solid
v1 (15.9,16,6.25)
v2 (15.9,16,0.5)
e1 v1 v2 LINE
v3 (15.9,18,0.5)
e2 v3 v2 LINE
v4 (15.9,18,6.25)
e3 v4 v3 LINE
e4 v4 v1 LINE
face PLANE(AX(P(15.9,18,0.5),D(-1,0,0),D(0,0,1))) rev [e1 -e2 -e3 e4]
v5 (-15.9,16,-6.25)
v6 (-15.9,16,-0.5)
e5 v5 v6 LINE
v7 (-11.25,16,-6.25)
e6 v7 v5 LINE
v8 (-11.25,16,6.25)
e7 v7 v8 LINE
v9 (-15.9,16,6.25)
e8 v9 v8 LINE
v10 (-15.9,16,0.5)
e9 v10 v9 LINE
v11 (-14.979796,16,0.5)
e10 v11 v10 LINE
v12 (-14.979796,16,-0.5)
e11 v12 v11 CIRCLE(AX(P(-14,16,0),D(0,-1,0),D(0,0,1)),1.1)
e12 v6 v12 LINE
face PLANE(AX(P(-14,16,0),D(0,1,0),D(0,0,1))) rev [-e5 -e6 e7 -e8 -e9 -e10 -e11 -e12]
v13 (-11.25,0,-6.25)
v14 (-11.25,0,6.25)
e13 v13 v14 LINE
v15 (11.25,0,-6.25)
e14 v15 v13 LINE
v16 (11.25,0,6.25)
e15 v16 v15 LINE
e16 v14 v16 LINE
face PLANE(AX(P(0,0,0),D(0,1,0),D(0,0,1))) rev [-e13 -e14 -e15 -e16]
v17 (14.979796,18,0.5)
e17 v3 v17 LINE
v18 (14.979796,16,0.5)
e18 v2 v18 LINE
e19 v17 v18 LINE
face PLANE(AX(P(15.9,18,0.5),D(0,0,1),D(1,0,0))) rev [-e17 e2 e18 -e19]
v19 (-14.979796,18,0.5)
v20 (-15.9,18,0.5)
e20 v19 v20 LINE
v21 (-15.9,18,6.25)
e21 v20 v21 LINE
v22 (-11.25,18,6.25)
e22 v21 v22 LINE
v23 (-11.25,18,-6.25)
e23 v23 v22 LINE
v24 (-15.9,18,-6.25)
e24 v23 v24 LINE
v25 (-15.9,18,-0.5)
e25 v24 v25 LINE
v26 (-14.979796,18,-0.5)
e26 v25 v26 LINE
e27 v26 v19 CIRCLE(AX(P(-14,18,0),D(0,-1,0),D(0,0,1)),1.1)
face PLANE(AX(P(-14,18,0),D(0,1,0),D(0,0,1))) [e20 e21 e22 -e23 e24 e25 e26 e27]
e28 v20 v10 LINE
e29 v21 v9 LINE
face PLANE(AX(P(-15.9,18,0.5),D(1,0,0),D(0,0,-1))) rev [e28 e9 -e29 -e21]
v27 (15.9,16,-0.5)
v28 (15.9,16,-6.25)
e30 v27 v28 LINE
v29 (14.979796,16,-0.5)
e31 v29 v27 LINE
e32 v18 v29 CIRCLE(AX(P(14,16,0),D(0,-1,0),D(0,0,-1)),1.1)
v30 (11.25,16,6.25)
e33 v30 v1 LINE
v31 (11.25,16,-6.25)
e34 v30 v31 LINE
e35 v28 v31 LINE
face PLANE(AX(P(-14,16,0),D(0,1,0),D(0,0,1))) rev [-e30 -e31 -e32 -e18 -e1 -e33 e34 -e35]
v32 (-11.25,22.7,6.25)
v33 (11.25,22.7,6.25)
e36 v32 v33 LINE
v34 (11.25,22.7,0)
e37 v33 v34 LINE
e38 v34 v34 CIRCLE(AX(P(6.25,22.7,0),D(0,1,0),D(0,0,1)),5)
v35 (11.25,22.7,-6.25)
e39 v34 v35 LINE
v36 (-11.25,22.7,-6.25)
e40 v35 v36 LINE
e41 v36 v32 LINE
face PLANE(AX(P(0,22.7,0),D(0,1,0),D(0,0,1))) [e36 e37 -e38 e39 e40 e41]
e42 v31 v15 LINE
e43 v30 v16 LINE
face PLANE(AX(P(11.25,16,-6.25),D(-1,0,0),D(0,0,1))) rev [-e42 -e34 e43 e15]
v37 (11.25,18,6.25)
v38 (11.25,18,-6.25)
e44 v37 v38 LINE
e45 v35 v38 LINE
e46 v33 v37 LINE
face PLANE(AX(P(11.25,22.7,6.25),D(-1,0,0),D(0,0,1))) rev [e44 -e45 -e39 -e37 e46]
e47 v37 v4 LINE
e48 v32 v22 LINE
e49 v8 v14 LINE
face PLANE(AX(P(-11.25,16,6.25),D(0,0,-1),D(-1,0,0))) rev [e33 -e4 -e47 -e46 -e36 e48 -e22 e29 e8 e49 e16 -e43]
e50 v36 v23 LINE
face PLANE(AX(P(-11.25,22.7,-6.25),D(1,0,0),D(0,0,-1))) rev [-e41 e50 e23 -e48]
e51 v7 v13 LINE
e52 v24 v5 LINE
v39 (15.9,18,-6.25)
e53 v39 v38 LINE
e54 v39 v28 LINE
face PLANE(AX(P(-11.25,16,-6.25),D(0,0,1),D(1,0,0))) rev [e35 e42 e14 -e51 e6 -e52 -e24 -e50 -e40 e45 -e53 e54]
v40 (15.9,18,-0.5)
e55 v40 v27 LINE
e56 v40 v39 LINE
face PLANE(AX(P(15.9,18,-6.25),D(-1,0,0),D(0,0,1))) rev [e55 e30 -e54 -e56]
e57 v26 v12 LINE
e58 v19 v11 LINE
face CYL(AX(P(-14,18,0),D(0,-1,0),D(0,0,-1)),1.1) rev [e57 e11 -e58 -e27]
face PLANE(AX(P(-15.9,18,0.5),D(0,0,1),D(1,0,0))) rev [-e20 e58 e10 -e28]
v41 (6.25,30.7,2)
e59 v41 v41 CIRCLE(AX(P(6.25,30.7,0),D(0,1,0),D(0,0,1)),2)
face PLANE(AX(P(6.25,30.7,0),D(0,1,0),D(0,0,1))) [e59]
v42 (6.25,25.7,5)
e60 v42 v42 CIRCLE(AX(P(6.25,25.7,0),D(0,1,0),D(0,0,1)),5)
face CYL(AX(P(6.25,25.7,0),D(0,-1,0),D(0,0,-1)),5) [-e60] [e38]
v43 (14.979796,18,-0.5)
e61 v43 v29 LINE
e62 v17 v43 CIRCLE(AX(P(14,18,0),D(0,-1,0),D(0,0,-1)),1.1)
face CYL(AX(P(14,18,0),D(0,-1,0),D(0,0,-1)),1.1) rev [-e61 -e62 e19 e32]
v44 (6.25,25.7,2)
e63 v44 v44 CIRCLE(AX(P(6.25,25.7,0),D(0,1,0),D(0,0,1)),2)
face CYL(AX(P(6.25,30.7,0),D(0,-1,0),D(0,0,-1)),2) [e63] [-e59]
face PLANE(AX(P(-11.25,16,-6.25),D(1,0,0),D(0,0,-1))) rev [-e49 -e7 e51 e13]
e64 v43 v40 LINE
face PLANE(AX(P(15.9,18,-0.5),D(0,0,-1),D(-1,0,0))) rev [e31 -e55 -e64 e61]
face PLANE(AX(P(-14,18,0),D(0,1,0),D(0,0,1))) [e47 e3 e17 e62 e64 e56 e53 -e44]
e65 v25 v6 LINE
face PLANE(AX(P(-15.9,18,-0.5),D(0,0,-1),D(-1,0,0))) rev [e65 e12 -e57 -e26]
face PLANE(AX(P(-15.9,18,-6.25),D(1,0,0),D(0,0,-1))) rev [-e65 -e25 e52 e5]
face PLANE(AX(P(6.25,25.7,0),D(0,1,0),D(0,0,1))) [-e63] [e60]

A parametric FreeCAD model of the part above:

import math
import FreeCAD as App
import Part
import Sketcher
from FreeCAD import Vector

doc = App.newDocument("Part")
params = doc.addObject("Spreadsheet::Sheet", "Params")
for row, (alias, value) in enumerate([
    ("sketch1_width", "22.5 mm"),
    ("sketch1_height", "12.5 mm"),
    ("pad1_length", "16 mm"),
    ("sketch2_radius", "1.1 mm"),
    ("sketch2_width", "31.8 mm"),
    ("sketch2_height", "5.75 mm"),
    ("pad2_length", "2 mm"),
    ("sketch3_width", "22.5 mm"),
    ("sketch3_height", "12.5 mm"),
    ("pad3_length", "4.7 mm"),
    ("sketch4_diameter", "10 mm"),
    ("pad4_length", "3 mm"),
    ("sketch5_diameter", "4 mm"),
    ("pad5_length", "5 mm"),
], start=1):
    params.set(f"A{row}", alias)
    params.set(f"B{row}", "=" + value)
    params.setAlias(f"B{row}", alias)

body = doc.addObject("PartDesign::Body", "Body")

# Sketch on XZ plane
sketch1 = body.newObject("Sketcher::SketchObject", "Sketch")
sketch1.AttachmentSupport = (doc.getObject("XZ_Plane"), [""])
sketch1.MapMode = "FlatFace"
sketch1.addGeometry([
    Part.LineSegment(Vector(-11, -6, 0), Vector(-11, 6, 0)),
    Part.LineSegment(Vector(-11, 6, 0), Vector(11, 6, 0)),
    Part.LineSegment(Vector(11, 6, 0), Vector(11, -6, 0)),
    Part.LineSegment(Vector(11, -6, 0), Vector(-11, -6, 0)),
], False)
sketch1.addConstraint([
    Sketcher.Constraint("Coincident", 0, 2, 1, 1),
    Sketcher.Constraint("Coincident", 1, 2, 2, 1),
    Sketcher.Constraint("Coincident", 2, 2, 3, 1),
    Sketcher.Constraint("Coincident", 3, 2, 0, 1),
    Sketcher.Constraint("Vertical", 0),
    Sketcher.Constraint("Horizontal", 1),
    Sketcher.Constraint("Vertical", 2),
    Sketcher.Constraint("Horizontal", 3),
    Sketcher.Constraint("Symmetric", 0, 2, 2, 2, -1, 1),
    Sketcher.Constraint("DistanceX", 1, 1, 1, 2, 22.5),
    Sketcher.Constraint("DistanceY", 0, 1, 0, 2, 12.5),
])
sketch1.setExpression("Constraints[9]", "Params.sketch1_width")
sketch1.setExpression("Constraints[10]", "Params.sketch1_height")
pad1 = body.newObject("PartDesign::Pad", "Pad")
pad1.Profile = sketch1
pad1.setExpression("Length", "Params.pad1_length")
pad1.Reversed = True

# Sketch on XZ plane
sketch2 = body.newObject("Sketcher::SketchObject", "Sketch001")
sketch2.AttachmentSupport = (doc.getObject("XZ_Plane"), [""])
sketch2.MapMode = "FlatFace"
sketch2.AttachmentOffset = App.Placement(Vector(0, 0, -16), App.Rotation())
sketch2.addGeometry([
    Part.LineSegment(Vector(15.9, -6.2, 0), Vector(-15.9, -6.2, 0)),  # 0
    Part.LineSegment(Vector(-15.9, -6.2, 0), Vector(-15.9, -0.5, 0)),  # 1
    Part.LineSegment(Vector(-15.9, -0.5, 0), Vector(-15, -0.5, 0)),  # 2
    Part.ArcOfCircle(Part.Circle(Vector(-14, 0, 0), Vector(0, 0, 1), 1.1), math.radians(-153), math.radians(153)),  # 3
    Part.LineSegment(Vector(-15, 0.5, 0), Vector(-15.9, 0.5, 0)),  # 4
    Part.LineSegment(Vector(-15.9, 0.5, 0), Vector(-15.9, 6.2, 0)),  # 5
    Part.LineSegment(Vector(-15.9, 6.2, 0), Vector(15.9, 6.2, 0)),  # 6
    Part.LineSegment(Vector(15.9, 6.2, 0), Vector(15.9, 0.5, 0)),  # 7
    Part.LineSegment(Vector(15.9, 0.5, 0), Vector(15, 0.5, 0)),  # 8
    Part.ArcOfCircle(Part.Circle(Vector(14, 0, 0), Vector(0, 0, 1), 1.1), math.radians(27), math.radians(333)),  # 9
    Part.LineSegment(Vector(15, -0.5, 0), Vector(15.9, -0.5, 0)),  # 10
    Part.LineSegment(Vector(15.9, -0.5, 0), Vector(15.9, -6.2, 0)),  # 11
], False)
sketch2.addConstraint([
    Sketcher.Constraint("Coincident", 0, 2, 1, 1),
    Sketcher.Constraint("Coincident", 1, 2, 2, 1),
    Sketcher.Constraint("Coincident", 2, 2, 3, 1),
    Sketcher.Constraint("Coincident", 3, 2, 4, 1),
    Sketcher.Constraint("Coincident", 4, 2, 5, 1),
    Sketcher.Constraint("Coincident", 5, 2, 6, 1),
    Sketcher.Constraint("Coincident", 6, 2, 7, 1),
    Sketcher.Constraint("Coincident", 7, 2, 8, 1),
    Sketcher.Constraint("Coincident", 8, 2, 9, 1),
    Sketcher.Constraint("Coincident", 9, 2, 10, 1),
    Sketcher.Constraint("Coincident", 10, 2, 11, 1),
    Sketcher.Constraint("Coincident", 11, 2, 0, 1),
    Sketcher.Constraint("Horizontal", 0),
    Sketcher.Constraint("Vertical", 1),
    Sketcher.Constraint("Horizontal", 2),
    Sketcher.Constraint("Horizontal", 4),
    Sketcher.Constraint("Vertical", 5),
    Sketcher.Constraint("Horizontal", 6),
    Sketcher.Constraint("Vertical", 7),
    Sketcher.Constraint("Horizontal", 8),
    Sketcher.Constraint("Horizontal", 10),
    Sketcher.Constraint("Vertical", 11),
    Sketcher.Constraint("Equal", 3, 9),
    Sketcher.Constraint("Symmetric", 3, 3, 9, 3, -1, 1),
    Sketcher.Constraint("Symmetric", 0, 2, 6, 2, -1, 1),
    Sketcher.Constraint("Symmetric", 4, 2, 10, 2, -1, 1),
    Sketcher.Constraint("Symmetric", 4, 2, 7, 2, -2),
    Sketcher.Constraint("Symmetric", 2, 2, 9, 2, -2),
    Sketcher.Constraint("Radius", 3, 1.1),
    Sketcher.Constraint("DistanceX", 0, 2, 0, 1, 31.8),
    Sketcher.Constraint("DistanceX", 3, 3, -1, 1, 14.0),
    Sketcher.Constraint("DistanceY", 2, 2, 3, 2, 1.0),
    Sketcher.Constraint("DistanceY", 1, 1, 1, 2, 5.75),
])
sketch2.setExpression("Constraints[28]", "Params.sketch2_radius")
sketch2.setExpression("Constraints[29]", "Params.sketch2_width")
sketch2.setExpression("Constraints[32]", "Params.sketch2_height")
pad2 = body.newObject("PartDesign::Pad", "Pad001")
pad2.Profile = sketch2
pad2.setExpression("Length", "Params.pad2_length")
pad2.Reversed = True

# Sketch on XZ plane
sketch3 = body.newObject("Sketcher::SketchObject", "Sketch002")
sketch3.AttachmentSupport = (doc.getObject("XZ_Plane"), [""])
sketch3.MapMode = "FlatFace"
sketch3.AttachmentOffset = App.Placement(Vector(0, 0, -18), App.Rotation())
sketch3.addGeometry([
    Part.LineSegment(Vector(-11, -6, 0), Vector(-11, 6, 0)),
    Part.LineSegment(Vector(-11, 6, 0), Vector(11, 6, 0)),
    Part.LineSegment(Vector(11, 6, 0), Vector(11, -6, 0)),
    Part.LineSegment(Vector(11, -6, 0), Vector(-11, -6, 0)),
], False)
sketch3.addConstraint([
    Sketcher.Constraint("Coincident", 0, 2, 1, 1),
    Sketcher.Constraint("Coincident", 1, 2, 2, 1),
    Sketcher.Constraint("Coincident", 2, 2, 3, 1),
    Sketcher.Constraint("Coincident", 3, 2, 0, 1),
    Sketcher.Constraint("Vertical", 0),
    Sketcher.Constraint("Horizontal", 1),
    Sketcher.Constraint("Vertical", 2),
    Sketcher.Constraint("Horizontal", 3),
    Sketcher.Constraint("Symmetric", 0, 2, 2, 2, -1, 1),
    Sketcher.Constraint("DistanceX", 1, 1, 1, 2, 22.5),
    Sketcher.Constraint("DistanceY", 0, 1, 0, 2, 12.5),
])
sketch3.setExpression("Constraints[9]", "Params.sketch3_width")
sketch3.setExpression("Constraints[10]", "Params.sketch3_height")
pad3 = body.newObject("PartDesign::Pad", "Pad002")
pad3.Profile = sketch3
pad3.setExpression("Length", "Params.pad3_length")
pad3.Reversed = True

# Sketch on XZ plane
sketch4 = body.newObject("Sketcher::SketchObject", "Sketch003")
sketch4.AttachmentSupport = (doc.getObject("XZ_Plane"), [""])
sketch4.MapMode = "FlatFace"
sketch4.AttachmentOffset = App.Placement(Vector(0, 0, -22.7), App.Rotation())
sketch4.addGeometry(Part.Circle(Vector(6, 0, 0), Vector(0, 0, 1), 5), False)
sketch4.addConstraint([
    Sketcher.Constraint("PointOnObject", 0, 3, -1),
    Sketcher.Constraint("Diameter", 0, 10.0),
    Sketcher.Constraint("DistanceX", -1, 1, 0, 3, 6.25),
])
sketch4.setExpression("Constraints[1]", "Params.sketch4_diameter")
pad4 = body.newObject("PartDesign::Pad", "Pad003")
pad4.Profile = sketch4
pad4.setExpression("Length", "Params.pad4_length")
pad4.Reversed = True

# Sketch on XZ plane
sketch5 = body.newObject("Sketcher::SketchObject", "Sketch004")
sketch5.AttachmentSupport = (doc.getObject("XZ_Plane"), [""])
sketch5.MapMode = "FlatFace"
sketch5.AttachmentOffset = App.Placement(Vector(0, 0, -25.7), App.Rotation())
sketch5.addGeometry(Part.Circle(Vector(6.2, 0, 0), Vector(0, 0, 1), 2), False)
sketch5.addConstraint([
    Sketcher.Constraint("PointOnObject", 0, 3, -1),
    Sketcher.Constraint("Diameter", 0, 4.0),
    Sketcher.Constraint("DistanceX", -1, 1, 0, 3, 6.25),
])
sketch5.setExpression("Constraints[1]", "Params.sketch5_diameter")
pad5 = body.newObject("PartDesign::Pad", "Pad004")
pad5.Profile = sketch5
pad5.setExpression("Length", "Params.pad5_length")
pad5.Reversed = True

doc.recompute()
